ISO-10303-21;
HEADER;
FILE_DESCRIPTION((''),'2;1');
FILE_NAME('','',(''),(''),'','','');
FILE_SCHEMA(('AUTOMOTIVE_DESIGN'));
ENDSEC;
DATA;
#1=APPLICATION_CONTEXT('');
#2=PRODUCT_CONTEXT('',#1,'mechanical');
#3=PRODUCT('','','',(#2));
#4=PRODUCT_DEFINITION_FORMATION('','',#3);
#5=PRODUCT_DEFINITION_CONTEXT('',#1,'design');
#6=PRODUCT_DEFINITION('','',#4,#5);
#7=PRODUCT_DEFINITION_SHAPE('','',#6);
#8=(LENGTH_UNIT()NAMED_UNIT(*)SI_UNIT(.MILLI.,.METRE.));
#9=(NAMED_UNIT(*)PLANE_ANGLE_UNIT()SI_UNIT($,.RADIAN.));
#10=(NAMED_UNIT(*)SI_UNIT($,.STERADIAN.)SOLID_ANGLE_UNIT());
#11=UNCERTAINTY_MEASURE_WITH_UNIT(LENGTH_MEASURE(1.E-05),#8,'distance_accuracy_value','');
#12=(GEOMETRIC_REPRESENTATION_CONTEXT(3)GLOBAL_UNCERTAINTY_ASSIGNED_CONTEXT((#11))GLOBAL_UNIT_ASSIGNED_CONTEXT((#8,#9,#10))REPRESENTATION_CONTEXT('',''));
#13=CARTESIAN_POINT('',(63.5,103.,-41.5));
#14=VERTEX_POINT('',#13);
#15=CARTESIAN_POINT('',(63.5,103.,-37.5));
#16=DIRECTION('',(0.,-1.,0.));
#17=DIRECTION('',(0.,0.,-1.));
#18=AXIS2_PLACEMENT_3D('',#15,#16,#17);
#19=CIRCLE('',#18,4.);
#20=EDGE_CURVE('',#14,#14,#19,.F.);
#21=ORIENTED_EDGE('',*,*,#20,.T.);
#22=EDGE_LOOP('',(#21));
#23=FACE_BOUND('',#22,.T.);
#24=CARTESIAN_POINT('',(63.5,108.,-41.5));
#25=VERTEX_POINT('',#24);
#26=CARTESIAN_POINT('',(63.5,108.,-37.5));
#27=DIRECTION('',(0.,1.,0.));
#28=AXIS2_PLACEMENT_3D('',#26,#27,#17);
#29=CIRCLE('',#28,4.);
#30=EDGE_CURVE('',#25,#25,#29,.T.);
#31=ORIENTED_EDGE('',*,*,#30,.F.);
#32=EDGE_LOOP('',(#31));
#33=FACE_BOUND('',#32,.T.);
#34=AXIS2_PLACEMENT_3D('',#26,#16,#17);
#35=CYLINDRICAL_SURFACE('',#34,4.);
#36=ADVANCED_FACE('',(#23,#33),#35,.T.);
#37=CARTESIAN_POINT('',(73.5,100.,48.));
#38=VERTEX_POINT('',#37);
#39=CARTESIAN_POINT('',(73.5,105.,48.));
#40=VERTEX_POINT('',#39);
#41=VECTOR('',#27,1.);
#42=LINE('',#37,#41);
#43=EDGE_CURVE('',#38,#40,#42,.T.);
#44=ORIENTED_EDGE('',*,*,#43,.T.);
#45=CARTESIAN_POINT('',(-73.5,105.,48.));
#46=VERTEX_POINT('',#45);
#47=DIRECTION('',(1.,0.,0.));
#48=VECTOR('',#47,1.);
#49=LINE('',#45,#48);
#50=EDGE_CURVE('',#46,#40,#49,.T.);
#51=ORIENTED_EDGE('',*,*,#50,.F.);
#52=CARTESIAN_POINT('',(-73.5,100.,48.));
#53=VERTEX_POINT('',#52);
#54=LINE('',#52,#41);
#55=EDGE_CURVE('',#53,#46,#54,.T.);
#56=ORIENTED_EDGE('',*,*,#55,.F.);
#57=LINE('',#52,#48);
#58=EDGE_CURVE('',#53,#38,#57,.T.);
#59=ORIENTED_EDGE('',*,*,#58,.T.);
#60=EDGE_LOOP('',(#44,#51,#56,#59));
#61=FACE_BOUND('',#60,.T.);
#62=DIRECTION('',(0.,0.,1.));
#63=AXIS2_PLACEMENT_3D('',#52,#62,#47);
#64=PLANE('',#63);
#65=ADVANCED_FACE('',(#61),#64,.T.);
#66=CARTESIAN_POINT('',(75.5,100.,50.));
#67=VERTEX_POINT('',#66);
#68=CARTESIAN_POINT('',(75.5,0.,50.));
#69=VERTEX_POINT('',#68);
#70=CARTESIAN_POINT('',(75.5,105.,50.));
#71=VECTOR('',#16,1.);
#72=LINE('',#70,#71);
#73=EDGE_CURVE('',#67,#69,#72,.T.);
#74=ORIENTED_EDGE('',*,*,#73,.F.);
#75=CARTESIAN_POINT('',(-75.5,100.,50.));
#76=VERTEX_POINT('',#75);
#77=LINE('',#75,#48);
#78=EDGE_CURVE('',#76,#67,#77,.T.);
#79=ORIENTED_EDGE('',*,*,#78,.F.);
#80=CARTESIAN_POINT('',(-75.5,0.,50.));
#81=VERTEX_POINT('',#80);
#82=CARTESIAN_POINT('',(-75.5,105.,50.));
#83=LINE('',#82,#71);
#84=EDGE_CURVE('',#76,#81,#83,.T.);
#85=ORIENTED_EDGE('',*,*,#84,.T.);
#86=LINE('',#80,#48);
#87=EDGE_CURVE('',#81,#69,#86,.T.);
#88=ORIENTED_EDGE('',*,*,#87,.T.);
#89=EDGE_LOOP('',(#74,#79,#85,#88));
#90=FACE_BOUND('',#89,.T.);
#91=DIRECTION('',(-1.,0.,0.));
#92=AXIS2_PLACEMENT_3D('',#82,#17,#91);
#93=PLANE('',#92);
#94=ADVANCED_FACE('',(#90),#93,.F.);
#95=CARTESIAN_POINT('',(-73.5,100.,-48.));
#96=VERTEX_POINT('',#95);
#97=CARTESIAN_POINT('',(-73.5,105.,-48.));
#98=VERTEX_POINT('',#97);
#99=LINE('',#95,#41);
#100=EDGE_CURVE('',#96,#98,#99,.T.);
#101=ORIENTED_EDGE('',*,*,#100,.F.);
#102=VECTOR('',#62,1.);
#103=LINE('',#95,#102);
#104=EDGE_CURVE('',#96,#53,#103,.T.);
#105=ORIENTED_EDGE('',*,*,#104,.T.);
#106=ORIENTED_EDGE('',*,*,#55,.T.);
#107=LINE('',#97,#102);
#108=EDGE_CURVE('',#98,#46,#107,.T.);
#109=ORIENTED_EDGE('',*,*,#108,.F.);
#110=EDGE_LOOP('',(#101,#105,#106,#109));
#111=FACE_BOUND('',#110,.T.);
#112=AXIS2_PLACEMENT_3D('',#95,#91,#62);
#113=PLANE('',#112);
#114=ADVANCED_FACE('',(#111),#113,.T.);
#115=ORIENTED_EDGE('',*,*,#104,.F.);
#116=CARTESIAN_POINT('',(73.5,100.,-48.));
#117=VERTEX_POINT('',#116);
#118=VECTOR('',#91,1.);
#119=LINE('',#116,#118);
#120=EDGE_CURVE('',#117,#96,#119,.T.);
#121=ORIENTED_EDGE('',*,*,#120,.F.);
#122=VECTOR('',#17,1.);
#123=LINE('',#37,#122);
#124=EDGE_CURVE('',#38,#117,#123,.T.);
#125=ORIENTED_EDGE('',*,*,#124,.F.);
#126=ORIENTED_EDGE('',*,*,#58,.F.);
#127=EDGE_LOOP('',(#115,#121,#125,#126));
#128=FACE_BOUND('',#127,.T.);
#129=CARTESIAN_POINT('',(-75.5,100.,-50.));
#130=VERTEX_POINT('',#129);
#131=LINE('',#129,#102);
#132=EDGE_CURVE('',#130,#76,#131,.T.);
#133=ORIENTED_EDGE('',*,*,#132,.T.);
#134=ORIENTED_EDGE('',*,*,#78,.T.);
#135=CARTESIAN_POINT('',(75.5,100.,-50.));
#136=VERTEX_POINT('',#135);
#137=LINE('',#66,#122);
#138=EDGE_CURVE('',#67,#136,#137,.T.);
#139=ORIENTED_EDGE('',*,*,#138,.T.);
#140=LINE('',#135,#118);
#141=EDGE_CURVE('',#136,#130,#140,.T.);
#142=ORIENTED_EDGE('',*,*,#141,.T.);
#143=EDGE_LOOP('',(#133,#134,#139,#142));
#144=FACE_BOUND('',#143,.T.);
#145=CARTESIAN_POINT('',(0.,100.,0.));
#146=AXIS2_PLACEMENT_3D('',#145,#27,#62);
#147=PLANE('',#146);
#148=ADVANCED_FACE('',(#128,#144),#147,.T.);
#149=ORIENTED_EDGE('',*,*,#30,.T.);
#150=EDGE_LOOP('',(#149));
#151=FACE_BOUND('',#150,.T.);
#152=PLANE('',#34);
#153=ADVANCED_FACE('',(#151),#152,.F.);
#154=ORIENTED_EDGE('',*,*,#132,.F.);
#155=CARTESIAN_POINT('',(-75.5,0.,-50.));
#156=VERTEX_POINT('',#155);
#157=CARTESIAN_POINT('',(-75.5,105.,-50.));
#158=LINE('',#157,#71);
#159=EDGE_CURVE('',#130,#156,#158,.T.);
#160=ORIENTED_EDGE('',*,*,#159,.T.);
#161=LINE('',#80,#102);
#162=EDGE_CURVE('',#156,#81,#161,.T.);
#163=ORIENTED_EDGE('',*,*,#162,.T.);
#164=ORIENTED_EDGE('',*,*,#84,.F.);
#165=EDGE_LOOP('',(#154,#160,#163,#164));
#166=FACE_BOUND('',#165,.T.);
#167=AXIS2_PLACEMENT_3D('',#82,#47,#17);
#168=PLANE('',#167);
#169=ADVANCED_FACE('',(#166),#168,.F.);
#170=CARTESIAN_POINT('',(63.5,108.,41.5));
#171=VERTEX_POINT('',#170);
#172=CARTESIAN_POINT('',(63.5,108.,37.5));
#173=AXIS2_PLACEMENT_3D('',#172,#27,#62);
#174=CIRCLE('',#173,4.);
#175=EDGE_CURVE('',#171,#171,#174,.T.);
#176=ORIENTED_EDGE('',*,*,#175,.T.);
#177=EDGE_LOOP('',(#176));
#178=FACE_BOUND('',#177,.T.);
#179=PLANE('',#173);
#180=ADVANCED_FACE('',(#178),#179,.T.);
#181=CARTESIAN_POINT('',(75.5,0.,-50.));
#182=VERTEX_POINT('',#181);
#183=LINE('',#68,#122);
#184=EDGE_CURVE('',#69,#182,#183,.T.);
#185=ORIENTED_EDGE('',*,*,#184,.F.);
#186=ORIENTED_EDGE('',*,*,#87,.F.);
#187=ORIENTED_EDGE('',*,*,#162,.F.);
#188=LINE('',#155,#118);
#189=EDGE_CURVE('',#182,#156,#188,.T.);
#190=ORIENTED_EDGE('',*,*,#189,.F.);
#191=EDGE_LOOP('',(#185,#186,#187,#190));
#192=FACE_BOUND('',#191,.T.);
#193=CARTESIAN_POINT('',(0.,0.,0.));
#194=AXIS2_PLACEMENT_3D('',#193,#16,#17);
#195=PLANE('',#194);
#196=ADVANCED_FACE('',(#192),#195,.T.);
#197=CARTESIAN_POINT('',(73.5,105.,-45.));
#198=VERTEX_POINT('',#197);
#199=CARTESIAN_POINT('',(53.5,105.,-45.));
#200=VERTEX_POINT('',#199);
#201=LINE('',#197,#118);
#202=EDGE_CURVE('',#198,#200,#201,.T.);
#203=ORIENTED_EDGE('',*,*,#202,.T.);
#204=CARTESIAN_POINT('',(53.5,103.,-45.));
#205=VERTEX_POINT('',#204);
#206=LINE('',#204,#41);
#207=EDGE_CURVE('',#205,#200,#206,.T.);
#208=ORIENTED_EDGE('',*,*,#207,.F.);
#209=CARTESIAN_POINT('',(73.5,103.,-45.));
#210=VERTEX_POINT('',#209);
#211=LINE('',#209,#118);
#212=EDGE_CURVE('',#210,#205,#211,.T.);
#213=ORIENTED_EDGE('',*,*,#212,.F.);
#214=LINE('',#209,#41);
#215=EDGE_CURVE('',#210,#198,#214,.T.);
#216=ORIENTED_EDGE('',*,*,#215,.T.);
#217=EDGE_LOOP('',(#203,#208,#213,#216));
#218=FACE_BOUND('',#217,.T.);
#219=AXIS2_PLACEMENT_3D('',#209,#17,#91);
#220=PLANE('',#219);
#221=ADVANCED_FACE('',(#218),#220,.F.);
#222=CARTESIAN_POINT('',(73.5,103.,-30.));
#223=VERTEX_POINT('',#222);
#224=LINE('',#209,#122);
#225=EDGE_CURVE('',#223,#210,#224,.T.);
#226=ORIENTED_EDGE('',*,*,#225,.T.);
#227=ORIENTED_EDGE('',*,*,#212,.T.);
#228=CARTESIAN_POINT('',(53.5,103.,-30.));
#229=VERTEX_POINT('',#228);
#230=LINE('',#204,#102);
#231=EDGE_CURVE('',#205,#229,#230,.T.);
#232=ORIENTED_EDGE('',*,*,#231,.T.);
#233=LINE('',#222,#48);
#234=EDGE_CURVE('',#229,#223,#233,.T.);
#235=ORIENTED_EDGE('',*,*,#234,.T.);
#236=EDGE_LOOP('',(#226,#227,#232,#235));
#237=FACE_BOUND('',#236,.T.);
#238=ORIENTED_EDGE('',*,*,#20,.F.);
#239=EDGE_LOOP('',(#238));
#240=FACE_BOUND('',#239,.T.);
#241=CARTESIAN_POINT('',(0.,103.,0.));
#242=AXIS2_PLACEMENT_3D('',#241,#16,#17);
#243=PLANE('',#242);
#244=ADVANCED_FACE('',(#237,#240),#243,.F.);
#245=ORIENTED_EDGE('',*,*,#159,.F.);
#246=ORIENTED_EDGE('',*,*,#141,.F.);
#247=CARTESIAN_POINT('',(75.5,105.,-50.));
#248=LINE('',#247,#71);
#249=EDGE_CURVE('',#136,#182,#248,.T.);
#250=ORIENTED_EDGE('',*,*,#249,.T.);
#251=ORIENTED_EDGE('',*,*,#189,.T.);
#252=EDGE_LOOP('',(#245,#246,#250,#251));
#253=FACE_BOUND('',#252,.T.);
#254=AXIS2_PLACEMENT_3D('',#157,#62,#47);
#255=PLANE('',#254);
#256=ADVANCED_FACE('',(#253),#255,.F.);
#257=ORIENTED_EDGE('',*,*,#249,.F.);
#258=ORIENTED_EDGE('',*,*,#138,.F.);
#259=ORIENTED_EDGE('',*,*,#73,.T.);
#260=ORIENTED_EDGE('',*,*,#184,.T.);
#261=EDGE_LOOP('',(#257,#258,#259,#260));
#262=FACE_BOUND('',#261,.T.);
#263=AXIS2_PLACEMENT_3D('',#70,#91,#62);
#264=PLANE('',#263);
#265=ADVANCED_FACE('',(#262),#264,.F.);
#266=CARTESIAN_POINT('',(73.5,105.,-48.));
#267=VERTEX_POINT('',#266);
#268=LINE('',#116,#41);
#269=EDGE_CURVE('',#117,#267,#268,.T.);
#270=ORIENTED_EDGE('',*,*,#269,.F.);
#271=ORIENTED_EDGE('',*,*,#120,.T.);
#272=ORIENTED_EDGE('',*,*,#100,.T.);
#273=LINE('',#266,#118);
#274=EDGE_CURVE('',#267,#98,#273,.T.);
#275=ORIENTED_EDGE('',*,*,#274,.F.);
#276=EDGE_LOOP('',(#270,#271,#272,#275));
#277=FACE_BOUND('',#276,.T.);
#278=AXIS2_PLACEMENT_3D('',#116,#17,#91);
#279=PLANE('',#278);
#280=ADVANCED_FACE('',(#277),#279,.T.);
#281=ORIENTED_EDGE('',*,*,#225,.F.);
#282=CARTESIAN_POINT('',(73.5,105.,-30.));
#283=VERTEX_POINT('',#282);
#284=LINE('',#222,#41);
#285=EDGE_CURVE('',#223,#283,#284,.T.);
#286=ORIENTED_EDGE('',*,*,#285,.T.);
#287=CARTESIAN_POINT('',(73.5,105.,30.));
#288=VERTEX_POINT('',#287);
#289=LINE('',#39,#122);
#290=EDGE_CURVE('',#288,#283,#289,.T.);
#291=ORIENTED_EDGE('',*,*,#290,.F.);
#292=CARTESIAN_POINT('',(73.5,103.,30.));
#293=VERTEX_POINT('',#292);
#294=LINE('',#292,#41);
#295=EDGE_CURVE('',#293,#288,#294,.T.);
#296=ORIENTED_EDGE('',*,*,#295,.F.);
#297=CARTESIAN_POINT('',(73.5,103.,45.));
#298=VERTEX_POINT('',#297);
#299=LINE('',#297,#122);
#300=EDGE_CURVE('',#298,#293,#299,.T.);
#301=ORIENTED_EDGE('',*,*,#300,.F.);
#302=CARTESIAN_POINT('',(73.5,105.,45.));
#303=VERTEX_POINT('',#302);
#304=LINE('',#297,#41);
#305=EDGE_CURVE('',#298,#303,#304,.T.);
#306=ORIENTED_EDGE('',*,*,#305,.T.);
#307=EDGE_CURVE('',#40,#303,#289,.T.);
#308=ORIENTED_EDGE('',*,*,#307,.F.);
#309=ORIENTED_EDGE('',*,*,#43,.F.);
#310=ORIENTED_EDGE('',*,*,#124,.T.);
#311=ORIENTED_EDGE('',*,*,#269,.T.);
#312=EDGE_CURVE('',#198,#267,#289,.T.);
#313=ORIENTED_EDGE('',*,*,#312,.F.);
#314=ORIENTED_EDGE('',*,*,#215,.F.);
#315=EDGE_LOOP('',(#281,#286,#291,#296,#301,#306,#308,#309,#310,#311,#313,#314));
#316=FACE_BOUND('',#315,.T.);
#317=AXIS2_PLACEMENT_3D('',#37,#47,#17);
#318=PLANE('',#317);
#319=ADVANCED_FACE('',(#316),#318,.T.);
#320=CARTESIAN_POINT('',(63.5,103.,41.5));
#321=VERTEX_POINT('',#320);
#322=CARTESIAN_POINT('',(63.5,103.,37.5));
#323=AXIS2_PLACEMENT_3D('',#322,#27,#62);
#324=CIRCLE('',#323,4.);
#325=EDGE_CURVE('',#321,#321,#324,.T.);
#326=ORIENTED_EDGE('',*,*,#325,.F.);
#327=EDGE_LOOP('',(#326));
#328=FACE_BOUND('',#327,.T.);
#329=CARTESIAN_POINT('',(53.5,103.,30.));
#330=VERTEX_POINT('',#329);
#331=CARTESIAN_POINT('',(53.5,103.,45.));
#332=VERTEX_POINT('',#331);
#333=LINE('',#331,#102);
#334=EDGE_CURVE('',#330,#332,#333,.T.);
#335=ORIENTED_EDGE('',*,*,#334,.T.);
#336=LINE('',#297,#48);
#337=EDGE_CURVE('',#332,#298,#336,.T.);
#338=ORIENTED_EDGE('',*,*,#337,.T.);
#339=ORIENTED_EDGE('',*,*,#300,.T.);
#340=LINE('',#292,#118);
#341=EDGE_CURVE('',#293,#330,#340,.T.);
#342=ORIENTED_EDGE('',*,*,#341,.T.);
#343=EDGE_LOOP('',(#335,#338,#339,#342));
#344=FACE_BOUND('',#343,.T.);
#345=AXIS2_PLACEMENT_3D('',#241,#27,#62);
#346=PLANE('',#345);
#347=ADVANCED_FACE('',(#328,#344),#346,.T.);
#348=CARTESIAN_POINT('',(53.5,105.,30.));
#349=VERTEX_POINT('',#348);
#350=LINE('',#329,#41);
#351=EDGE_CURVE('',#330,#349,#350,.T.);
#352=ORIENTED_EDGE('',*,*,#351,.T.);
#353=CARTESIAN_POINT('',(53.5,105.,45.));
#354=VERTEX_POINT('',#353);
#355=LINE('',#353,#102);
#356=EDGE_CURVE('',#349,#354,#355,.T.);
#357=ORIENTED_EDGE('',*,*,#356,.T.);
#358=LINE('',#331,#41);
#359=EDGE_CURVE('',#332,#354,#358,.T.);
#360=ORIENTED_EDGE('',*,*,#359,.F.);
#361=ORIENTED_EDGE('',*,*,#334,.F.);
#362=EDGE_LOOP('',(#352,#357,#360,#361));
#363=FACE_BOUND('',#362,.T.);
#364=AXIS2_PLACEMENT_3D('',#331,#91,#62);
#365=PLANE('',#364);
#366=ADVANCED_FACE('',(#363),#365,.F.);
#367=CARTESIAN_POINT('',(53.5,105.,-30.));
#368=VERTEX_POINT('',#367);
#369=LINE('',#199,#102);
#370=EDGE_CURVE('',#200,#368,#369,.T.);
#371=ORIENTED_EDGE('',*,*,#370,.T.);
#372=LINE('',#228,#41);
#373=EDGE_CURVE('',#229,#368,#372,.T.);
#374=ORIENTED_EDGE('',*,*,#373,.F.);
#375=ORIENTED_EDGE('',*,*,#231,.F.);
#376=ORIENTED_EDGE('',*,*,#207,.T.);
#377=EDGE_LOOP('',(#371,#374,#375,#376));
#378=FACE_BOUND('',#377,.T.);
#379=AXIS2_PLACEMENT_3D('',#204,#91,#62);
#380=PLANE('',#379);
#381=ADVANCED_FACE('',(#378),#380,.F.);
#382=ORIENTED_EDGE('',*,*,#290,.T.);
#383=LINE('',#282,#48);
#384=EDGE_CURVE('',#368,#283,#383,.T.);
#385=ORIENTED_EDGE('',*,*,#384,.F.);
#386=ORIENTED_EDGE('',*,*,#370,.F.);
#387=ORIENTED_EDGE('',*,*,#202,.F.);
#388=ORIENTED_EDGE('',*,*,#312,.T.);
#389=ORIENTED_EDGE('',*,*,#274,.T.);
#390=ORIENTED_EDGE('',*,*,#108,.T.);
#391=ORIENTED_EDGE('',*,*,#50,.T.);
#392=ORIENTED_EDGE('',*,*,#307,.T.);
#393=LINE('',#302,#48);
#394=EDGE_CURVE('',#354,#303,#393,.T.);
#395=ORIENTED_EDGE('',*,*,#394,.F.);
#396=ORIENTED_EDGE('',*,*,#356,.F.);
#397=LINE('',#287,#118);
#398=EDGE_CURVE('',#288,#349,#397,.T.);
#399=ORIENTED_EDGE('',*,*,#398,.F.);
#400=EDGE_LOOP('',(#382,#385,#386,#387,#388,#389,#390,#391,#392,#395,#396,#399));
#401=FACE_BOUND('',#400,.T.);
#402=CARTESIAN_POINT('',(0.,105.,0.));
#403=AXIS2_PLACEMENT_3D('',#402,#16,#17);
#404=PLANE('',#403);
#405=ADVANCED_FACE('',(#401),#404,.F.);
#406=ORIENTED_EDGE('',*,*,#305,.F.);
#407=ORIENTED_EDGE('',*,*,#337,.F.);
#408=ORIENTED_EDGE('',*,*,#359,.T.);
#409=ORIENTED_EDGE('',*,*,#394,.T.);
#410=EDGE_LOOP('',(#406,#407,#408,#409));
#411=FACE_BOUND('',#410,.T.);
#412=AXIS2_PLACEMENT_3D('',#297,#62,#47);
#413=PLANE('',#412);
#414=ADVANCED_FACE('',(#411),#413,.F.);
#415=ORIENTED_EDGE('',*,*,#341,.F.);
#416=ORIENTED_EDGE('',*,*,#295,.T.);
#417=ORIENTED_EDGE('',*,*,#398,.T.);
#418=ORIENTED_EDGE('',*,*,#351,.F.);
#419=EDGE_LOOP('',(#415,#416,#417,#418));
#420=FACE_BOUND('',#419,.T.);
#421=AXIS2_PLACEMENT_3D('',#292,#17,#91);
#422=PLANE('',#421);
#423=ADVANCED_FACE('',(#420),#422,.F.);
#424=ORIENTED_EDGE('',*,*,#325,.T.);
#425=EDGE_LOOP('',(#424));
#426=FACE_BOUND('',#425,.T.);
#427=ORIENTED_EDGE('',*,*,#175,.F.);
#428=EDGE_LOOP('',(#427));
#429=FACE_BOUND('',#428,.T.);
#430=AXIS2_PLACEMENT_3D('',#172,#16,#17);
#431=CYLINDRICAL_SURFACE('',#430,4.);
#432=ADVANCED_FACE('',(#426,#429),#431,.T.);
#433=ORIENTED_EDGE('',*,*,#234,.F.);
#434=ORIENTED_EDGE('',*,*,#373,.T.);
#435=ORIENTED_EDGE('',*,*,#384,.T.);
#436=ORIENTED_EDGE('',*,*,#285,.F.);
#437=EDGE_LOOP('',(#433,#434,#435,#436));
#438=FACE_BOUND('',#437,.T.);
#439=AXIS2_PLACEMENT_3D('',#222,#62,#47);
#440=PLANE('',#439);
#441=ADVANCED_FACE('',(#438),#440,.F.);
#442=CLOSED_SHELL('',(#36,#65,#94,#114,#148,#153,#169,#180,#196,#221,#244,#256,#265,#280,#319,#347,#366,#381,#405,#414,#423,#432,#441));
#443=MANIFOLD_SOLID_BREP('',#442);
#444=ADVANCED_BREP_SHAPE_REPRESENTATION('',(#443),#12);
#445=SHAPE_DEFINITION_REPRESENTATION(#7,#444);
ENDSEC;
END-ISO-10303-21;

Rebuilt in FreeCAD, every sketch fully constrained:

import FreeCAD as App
import Part
import Sketcher
Q = App.Units.Quantity


def add_polygon(sketch, points):
    """Adds a closed chain of lines whose ends are joined by coincident constraints."""
    first, n = sketch.GeometryCount, len(points)
    for a, b in zip(points, points[1:] + points[:1]):
        sketch.addGeometry(Part.LineSegment(App.Vector(*a, 0), App.Vector(*b, 0)), False)
    for i in range(n):
        sketch.addConstraint(Sketcher.Constraint("Coincident", first + i, 2, first + (i + 1) % n, 1))

doc = App.newDocument("Part")
params = doc.addObject("Spreadsheet::Sheet", "Params")
for row, (alias, value) in enumerate([
    ("sketch1_width", "151 mm"),
    ("sketch1_height", "100 mm"),
    ("pad1_length", "105 mm"),
    ("sketch2_width", "151 mm"),
    ("sketch2_width2", "147 mm"),
    ("sketch2_height", "100 mm"),
    ("sketch2_height2", "96 mm"),
    ("pocket1_length", "5 mm"),
    ("sketch3_width", "20 mm"),
    ("sketch3_height", "15 mm"),
    ("pocket2_length", "2 mm"),
    ("sketch4_diameter", "8 mm"),
    ("pad2_length", "5 mm"),
], start=1):
    params.set(f"A{row}", alias)
    params.set(f"B{row}", "=" + value)
    params.setAlias(f"B{row}", alias)

body = doc.addObject("PartDesign::Body", "Body")

sketch1 = doc.addObject("Sketcher::SketchObject", "Sketch")
body.addObject(sketch1)
sketch1.AttachmentSupport = (doc.XZ_Plane, [""])
sketch1.MapMode = "FlatFace"
add_polygon(sketch1, [(-76, -50), (-76, 50), (76, 50), (76, -50)])
sketch1.addConstraint([
    Sketcher.Constraint("Vertical", 0),
    Sketcher.Constraint("Horizontal", 1),
    Sketcher.Constraint("Vertical", 2),
    Sketcher.Constraint("Horizontal", 3),
    Sketcher.Constraint("Symmetric", 0, 2, 2, 2, -1, 1),
    Sketcher.Constraint("DistanceX", 1, 1, 1, 2, Q("151 mm")),
    Sketcher.Constraint("DistanceY", 0, 1, 0, 2, Q("100 mm")),
])
sketch1.setExpression("Constraints[9]", "Params.sketch1_width")
sketch1.setExpression("Constraints[10]", "Params.sketch1_height")
pad1 = doc.addObject("PartDesign::Pad", "Pad")
body.addObject(pad1)
pad1.Profile = sketch1
pad1.setExpression("Length", "Params.pad1_length")
pad1.Reversed = True

sketch2 = doc.addObject("Sketcher::SketchObject", "Sketch001")
body.addObject(sketch2)
sketch2.AttachmentSupport = (doc.XZ_Plane, [""])
sketch2.MapMode = "FlatFace"
sketch2.AttachmentOffset = App.Placement(App.Vector(0, 0, -105), App.Rotation())
add_polygon(sketch2, [(-76, -50), (-76, 50), (76, 50), (76, -50)])
add_polygon(sketch2, [(74, 48), (-74, 48), (-74, -48), (74, -48)])
sketch2.addConstraint([
    Sketcher.Constraint("Vertical", 0),
    Sketcher.Constraint("Horizontal", 1),
    Sketcher.Constraint("Vertical", 2),
    Sketcher.Constraint("Horizontal", 3),
    Sketcher.Constraint("Horizontal", 4),
    Sketcher.Constraint("Vertical", 5),
    Sketcher.Constraint("Horizontal", 6),
    Sketcher.Constraint("Vertical", 7),
    Sketcher.Constraint("Symmetric", 0, 2, 2, 2, -1, 1),
    Sketcher.Constraint("Symmetric", 4, 2, 6, 2, -1, 1),
    Sketcher.Constraint("DistanceX", 1, 1, 1, 2, Q("151 mm")),
    Sketcher.Constraint("DistanceX", 4, 2, 4, 1, Q("147 mm")),
    Sketcher.Constraint("DistanceY", 0, 1, 0, 2, Q("100 mm")),
    Sketcher.Constraint("DistanceY", 5, 2, 5, 1, Q("96 mm")),
])
sketch2.setExpression("Constraints[18]", "Params.sketch2_width")
sketch2.setExpression("Constraints[19]", "Params.sketch2_width2")
sketch2.setExpression("Constraints[20]", "Params.sketch2_height")
sketch2.setExpression("Constraints[21]", "Params.sketch2_height2")
pocket1 = doc.addObject("PartDesign::Pocket", "Pocket")
body.addObject(pocket1)
pocket1.Profile = sketch2
pocket1.setExpression("Length", "Params.pocket1_length")
pocket1.Reversed = True

sketch3 = doc.addObject("Sketcher::SketchObject", "Sketch002")
body.addObject(sketch3)
sketch3.AttachmentSupport = (doc.XZ_Plane, [""])
sketch3.MapMode = "FlatFace"
sketch3.AttachmentOffset = App.Placement(App.Vector(0, 0, -105), App.Rotation())
add_polygon(sketch3, [(54, -45), (54, -30), (74, -30), (74, -45)])
add_polygon(sketch3, [(54, 30), (54, 45), (74, 45), (74, 30)])
sketch3.addConstraint([
    Sketcher.Constraint("Vertical", 0),
    Sketcher.Constraint("Horizontal", 1),
    Sketcher.Constraint("Vertical", 2),
    Sketcher.Constraint("Horizontal", 3),
    Sketcher.Constraint("Vertical", 4),
    Sketcher.Constraint("Horizontal", 5),
    Sketcher.Constraint("Vertical", 6),
    Sketcher.Constraint("Horizontal", 7),
    Sketcher.Constraint("Symmetric", 3, 2, 4, 2, -1),
    Sketcher.Constraint("Symmetric", 1, 2, 6, 2, -1),
    Sketcher.Constraint("DistanceX", 1, 1, 1, 2, Q("20 mm")),
    Sketcher.Constraint("DistanceY", 0, 1, 0, 2, Q("15 mm")),
    Sketcher.Constraint("DistanceY", 0, 2, -1, 1, Q("30 mm")),
    Sketcher.Constraint("DistanceX", -1, 1, 0, 2, Q("53.5 mm")),
])
sketch3.setExpression("Constraints[18]", "Params.sketch3_width")
sketch3.setExpression("Constraints[19]", "Params.sketch3_height")
pocket2 = doc.addObject("PartDesign::Pocket", "Pocket001")
body.addObject(pocket2)
pocket2.Profile = sketch3
pocket2.setExpression("Length", "Params.pocket2_length")
pocket2.Reversed = True

sketch4 = doc.addObject("Sketcher::SketchObject", "Sketch003")
body.addObject(sketch4)
sketch4.AttachmentSupport = (doc.XZ_Plane, [""])
sketch4.MapMode = "FlatFace"
sketch4.AttachmentOffset = App.Placement(App.Vector(0, 0, -103), App.Rotation())
sketch4.addGeometry([
    Part.Circle(App.Vector(63.5, 37.5, 0), App.Vector(0, 0, 1), 4),
    Part.Circle(App.Vector(63.5, -37.5, 0), App.Vector(0, 0, 1), 4),
], False)
sketch4.addConstraint([
    Sketcher.Constraint("Equal", 0, 1),
    Sketcher.Constraint("Symmetric", 0, 3, 1, 3, -1),
    Sketcher.Constraint("Diameter", 0, Q("8 mm")),
    Sketcher.Constraint("DistanceY", 1, 3, 0, 3, Q("75 mm")),
    Sketcher.Constraint("DistanceX", -1, 1, 0, 3, Q("63.5 mm")),
])
sketch4.setExpression("Constraints[2]", "Params.sketch4_diameter")
pad2 = doc.addObject("PartDesign::Pad", "Pad001")
body.addObject(pad2)
pad2.Profile = sketch4
pad2.setExpression("Length", "Params.pad2_length")
pad2.Reversed = True

doc.recompute()
